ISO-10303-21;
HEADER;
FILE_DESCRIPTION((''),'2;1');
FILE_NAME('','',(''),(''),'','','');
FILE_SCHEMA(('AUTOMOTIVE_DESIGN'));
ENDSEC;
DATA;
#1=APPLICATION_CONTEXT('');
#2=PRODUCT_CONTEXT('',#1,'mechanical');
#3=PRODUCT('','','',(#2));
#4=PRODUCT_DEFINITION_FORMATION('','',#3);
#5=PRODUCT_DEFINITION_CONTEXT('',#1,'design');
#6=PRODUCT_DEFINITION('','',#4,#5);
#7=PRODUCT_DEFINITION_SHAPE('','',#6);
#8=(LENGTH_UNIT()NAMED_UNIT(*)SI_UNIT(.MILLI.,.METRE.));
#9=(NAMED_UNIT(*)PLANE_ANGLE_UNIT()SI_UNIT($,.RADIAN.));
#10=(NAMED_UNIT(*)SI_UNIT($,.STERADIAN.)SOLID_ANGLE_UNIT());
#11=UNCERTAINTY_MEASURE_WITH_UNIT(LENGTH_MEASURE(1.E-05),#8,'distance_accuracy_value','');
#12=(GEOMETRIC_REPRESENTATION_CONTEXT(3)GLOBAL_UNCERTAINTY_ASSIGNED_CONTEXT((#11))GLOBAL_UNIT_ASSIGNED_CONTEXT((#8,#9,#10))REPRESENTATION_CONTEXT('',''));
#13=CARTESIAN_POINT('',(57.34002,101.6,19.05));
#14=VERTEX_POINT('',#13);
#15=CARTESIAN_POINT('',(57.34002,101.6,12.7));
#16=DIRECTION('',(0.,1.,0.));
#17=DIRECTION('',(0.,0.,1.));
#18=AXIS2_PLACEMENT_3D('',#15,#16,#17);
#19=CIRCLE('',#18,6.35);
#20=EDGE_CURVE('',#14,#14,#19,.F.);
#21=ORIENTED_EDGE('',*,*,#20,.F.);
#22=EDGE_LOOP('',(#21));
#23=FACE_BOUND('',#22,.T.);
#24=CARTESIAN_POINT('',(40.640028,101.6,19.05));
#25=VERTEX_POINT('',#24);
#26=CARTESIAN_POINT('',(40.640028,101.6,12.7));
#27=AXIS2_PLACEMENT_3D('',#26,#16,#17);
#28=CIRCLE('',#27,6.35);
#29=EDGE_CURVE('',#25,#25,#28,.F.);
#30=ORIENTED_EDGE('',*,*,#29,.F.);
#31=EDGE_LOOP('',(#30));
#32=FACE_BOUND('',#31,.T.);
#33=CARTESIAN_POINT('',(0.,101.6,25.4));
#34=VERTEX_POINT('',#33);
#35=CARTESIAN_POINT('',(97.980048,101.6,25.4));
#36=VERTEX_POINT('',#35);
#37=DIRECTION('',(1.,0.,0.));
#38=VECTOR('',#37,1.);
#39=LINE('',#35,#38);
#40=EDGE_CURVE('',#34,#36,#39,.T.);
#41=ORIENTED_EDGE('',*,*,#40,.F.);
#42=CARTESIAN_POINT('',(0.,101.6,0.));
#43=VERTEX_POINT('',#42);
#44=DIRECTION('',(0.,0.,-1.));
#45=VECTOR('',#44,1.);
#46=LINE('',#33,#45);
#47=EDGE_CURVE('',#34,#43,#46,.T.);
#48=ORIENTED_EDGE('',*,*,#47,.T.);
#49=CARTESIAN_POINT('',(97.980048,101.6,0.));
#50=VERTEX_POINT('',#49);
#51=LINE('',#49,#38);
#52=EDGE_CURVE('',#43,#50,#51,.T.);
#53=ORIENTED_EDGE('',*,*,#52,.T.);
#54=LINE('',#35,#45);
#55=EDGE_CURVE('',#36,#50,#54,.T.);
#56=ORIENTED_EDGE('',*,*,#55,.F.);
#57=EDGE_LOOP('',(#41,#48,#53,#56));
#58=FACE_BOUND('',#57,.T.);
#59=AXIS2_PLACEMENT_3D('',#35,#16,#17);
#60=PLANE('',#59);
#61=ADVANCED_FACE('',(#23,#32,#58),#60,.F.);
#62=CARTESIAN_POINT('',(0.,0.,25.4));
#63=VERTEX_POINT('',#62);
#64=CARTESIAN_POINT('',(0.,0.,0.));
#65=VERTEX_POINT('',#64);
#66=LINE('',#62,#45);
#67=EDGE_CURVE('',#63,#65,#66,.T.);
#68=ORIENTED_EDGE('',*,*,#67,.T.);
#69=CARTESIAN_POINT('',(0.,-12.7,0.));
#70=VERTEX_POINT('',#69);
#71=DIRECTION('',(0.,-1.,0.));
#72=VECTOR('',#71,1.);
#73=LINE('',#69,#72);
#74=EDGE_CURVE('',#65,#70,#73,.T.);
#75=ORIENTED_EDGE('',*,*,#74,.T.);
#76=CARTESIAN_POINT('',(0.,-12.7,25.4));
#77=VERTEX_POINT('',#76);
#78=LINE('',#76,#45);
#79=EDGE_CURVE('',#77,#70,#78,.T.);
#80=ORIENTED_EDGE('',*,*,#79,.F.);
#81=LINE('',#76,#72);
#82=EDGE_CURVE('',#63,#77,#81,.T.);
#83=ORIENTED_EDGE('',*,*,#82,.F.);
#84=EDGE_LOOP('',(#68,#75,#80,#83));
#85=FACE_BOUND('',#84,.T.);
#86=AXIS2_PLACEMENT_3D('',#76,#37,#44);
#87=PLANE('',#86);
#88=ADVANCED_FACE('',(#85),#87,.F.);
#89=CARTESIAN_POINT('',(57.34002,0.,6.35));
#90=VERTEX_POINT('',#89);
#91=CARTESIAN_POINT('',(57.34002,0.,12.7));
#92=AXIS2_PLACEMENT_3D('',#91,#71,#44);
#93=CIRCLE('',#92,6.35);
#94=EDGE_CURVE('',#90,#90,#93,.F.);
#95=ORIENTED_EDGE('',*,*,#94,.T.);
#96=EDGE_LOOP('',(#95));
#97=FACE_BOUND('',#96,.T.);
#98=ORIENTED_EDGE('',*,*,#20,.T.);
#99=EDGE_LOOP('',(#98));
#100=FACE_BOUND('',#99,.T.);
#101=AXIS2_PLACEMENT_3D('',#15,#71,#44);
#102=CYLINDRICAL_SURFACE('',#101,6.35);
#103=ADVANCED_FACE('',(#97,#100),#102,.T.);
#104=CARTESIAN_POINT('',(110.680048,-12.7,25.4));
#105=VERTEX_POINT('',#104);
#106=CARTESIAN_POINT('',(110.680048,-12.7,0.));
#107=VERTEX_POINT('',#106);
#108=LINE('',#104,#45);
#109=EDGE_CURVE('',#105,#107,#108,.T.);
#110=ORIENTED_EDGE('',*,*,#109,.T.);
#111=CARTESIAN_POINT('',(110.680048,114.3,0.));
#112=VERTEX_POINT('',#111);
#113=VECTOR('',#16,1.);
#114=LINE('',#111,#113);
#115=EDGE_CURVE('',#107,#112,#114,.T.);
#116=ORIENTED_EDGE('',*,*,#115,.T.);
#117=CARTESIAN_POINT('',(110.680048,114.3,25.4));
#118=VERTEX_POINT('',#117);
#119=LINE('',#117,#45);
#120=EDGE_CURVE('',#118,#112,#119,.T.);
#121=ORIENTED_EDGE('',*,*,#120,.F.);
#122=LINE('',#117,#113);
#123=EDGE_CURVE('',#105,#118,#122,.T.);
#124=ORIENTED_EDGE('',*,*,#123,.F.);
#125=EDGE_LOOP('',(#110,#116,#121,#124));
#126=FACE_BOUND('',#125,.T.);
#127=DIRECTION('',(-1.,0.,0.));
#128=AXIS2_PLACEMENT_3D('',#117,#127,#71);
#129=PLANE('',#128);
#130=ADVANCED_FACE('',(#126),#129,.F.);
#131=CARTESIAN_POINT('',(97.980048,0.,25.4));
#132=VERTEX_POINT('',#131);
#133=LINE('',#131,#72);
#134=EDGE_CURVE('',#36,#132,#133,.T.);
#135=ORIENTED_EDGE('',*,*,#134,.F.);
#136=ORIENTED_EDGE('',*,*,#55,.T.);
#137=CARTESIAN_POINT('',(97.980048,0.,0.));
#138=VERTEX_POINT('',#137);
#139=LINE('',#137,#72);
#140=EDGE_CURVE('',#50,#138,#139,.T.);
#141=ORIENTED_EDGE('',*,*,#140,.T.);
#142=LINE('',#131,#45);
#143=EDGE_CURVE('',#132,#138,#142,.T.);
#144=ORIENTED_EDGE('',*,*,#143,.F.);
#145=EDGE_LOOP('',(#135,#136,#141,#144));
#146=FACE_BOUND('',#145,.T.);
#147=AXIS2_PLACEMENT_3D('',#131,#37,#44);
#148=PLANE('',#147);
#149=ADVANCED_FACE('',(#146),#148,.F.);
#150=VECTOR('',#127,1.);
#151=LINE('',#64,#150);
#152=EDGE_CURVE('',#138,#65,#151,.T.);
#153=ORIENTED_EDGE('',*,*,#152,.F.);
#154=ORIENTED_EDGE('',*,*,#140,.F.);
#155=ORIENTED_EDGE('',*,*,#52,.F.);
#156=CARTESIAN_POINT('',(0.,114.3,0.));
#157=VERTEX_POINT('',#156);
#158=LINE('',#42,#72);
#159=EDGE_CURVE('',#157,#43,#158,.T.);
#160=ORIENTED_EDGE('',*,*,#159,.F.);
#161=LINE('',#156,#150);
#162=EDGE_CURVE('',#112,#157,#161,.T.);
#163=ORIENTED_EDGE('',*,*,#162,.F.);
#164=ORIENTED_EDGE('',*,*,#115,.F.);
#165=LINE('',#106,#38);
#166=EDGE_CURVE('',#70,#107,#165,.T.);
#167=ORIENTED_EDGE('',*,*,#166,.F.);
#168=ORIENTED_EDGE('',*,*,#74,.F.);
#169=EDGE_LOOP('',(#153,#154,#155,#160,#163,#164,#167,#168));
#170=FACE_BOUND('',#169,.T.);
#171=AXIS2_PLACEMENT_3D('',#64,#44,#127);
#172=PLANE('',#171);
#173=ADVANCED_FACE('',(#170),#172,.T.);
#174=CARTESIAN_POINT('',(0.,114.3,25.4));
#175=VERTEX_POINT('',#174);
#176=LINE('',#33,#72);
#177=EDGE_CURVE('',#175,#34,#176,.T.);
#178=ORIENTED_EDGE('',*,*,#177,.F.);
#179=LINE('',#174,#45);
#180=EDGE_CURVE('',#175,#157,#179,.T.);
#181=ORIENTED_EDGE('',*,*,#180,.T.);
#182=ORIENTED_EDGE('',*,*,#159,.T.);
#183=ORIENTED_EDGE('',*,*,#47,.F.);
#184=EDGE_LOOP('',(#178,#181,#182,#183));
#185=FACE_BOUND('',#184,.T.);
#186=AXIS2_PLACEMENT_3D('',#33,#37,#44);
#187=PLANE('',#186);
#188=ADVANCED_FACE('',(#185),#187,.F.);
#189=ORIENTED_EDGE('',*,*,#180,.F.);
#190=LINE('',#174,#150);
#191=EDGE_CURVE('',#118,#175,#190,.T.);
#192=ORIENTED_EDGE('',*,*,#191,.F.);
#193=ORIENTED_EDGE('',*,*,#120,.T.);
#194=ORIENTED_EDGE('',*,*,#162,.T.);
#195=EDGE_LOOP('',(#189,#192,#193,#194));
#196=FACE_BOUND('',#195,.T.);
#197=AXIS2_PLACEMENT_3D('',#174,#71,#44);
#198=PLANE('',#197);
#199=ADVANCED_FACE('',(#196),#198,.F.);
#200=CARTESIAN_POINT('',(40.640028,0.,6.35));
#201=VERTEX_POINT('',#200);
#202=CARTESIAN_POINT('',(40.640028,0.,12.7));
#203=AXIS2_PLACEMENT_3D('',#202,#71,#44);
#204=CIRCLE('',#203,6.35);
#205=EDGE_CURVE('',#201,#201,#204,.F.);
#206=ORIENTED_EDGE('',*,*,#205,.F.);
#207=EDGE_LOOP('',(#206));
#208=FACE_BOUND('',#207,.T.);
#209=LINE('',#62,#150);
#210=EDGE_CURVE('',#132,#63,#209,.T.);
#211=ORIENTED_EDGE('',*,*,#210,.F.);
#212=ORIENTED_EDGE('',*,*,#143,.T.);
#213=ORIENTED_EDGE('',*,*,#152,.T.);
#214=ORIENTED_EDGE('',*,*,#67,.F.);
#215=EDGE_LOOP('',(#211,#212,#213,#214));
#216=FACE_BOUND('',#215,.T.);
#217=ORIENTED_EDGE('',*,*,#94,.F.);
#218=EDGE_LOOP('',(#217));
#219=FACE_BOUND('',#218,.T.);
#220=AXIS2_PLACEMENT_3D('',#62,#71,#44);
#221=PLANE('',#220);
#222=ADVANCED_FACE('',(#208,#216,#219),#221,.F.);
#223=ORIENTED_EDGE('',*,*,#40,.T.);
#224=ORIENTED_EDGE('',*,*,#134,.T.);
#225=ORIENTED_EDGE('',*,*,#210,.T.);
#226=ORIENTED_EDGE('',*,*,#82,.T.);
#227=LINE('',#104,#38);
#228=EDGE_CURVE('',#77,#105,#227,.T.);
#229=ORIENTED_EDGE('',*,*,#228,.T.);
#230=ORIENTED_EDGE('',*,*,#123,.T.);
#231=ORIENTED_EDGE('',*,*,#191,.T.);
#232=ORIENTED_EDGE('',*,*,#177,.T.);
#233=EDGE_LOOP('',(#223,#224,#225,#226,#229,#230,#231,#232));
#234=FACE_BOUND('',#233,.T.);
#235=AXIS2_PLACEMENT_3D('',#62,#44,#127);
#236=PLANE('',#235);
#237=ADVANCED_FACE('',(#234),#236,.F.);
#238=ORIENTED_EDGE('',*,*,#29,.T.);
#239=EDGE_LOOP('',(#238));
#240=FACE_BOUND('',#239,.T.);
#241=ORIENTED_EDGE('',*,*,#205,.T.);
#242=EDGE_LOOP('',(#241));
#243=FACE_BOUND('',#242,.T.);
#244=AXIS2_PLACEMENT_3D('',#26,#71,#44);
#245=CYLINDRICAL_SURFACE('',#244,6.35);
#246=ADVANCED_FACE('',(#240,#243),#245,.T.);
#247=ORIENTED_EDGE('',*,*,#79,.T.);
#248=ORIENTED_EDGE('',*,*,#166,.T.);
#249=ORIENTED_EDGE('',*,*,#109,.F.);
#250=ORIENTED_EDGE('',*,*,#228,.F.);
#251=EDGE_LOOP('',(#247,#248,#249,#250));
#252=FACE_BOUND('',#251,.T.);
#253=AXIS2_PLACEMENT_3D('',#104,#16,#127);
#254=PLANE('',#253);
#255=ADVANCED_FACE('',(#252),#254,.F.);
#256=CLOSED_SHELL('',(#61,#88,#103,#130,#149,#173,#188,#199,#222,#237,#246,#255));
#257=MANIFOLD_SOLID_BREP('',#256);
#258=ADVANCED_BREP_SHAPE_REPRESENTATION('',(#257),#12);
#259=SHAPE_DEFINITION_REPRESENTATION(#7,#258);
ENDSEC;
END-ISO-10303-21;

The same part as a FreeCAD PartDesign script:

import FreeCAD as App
import Part
import Sketcher
Q = App.Units.Quantity


def add_polygon(sketch, points):
    """Adds a closed chain of lines whose ends are joined by coincident constraints."""
    first, n = sketch.GeometryCount, len(points)
    for a, b in zip(points, points[1:] + points[:1]):
        sketch.addGeometry(Part.LineSegment(App.Vector(*a, 0), App.Vector(*b, 0)), False)
    for i in range(n):
        sketch.addConstraint(Sketcher.Constraint("Coincident", first + i, 2, first + (i + 1) % n, 1))

doc = App.newDocument("Part")
body = doc.addObject("PartDesign::Body", "Body")

# Sketch on XY plane
sketch1 = body.newObject("Sketcher::SketchObject", "Sketch")
sketch1.AttachmentSupport = (doc.getObject("XY_Plane"), [""])
sketch1.MapMode = "FlatFace"
add_polygon(sketch1, [(97.980048, 0), (0, 0), (0, -12.7), (110.680048, -12.7), (110.680048, 114.3), (0, 114.3), (0, 101.6), (97.980048, 101.6)])  # lines 0-7
sketch1.addConstraint([
    Sketcher.Constraint("Horizontal", 0),
    Sketcher.Constraint("Vertical", 1),
    Sketcher.Constraint("Horizontal", 2),
    Sketcher.Constraint("Vertical", 3),
    Sketcher.Constraint("Horizontal", 4),
    Sketcher.Constraint("Vertical", 5),
    Sketcher.Constraint("Horizontal", 6),
    Sketcher.Constraint("Vertical", 7),
    Sketcher.Constraint("Coincident", 0, 2, -1, 1),
    Sketcher.Constraint("PointOnObject", 4, 2, -2),
    Sketcher.Constraint("Equal", 1, 5),
    Sketcher.Constraint("DistanceY", 3, 1, 3, 2, Q("5 in")),
    Sketcher.Constraint("DistanceY", 7, 2, 7, 1, Q("4 in")),
    Sketcher.Constraint("DistanceX", 6, 2, 3, 2, Q("0.5 in")),
    Sketcher.Constraint("DistanceX", 0, 2, 0, 1, Q("97.980048 mm")),
])
pad1 = body.newObject("PartDesign::Pad", "Pad")
pad1.Profile = sketch1
pad1.Length = Q("1 in")

# Sketch on XZ plane
sketch2 = body.newObject("Sketcher::SketchObject", "Sketch001")
sketch2.AttachmentSupport = (doc.getObject("XZ_Plane"), [""])
sketch2.MapMode = "FlatFace"
sketch2.addGeometry([
    Part.Circle(App.Vector(40.640028, 12.7, 0), App.Vector(0, 0, 1), 6.35),
    Part.Circle(App.Vector(57.34002, 12.7, 0), App.Vector(0, 0, 1), 6.35),
], False)
sketch2.addConstraint([
    Sketcher.Constraint("Equal", 0, 1),
    Sketcher.Constraint("Horizontal", 0, 3, 1, 3),
    Sketcher.Constraint("Diameter", 0, Q("0.5 in")),
    Sketcher.Constraint("DistanceY", -1, 1, 0, 3, Q("0.5 in")),
    Sketcher.Constraint("DistanceX", -1, 1, 1, 3, Q("57.34002 mm")),
    Sketcher.Constraint("DistanceX", -1, 1, 0, 3, Q("40.640028 mm")),
])
pad2 = body.newObject("PartDesign::Pad", "Pad001")
pad2.Profile = sketch2
pad2.Length = Q("4 in")
pad2.Reversed = True

doc.recompute()
